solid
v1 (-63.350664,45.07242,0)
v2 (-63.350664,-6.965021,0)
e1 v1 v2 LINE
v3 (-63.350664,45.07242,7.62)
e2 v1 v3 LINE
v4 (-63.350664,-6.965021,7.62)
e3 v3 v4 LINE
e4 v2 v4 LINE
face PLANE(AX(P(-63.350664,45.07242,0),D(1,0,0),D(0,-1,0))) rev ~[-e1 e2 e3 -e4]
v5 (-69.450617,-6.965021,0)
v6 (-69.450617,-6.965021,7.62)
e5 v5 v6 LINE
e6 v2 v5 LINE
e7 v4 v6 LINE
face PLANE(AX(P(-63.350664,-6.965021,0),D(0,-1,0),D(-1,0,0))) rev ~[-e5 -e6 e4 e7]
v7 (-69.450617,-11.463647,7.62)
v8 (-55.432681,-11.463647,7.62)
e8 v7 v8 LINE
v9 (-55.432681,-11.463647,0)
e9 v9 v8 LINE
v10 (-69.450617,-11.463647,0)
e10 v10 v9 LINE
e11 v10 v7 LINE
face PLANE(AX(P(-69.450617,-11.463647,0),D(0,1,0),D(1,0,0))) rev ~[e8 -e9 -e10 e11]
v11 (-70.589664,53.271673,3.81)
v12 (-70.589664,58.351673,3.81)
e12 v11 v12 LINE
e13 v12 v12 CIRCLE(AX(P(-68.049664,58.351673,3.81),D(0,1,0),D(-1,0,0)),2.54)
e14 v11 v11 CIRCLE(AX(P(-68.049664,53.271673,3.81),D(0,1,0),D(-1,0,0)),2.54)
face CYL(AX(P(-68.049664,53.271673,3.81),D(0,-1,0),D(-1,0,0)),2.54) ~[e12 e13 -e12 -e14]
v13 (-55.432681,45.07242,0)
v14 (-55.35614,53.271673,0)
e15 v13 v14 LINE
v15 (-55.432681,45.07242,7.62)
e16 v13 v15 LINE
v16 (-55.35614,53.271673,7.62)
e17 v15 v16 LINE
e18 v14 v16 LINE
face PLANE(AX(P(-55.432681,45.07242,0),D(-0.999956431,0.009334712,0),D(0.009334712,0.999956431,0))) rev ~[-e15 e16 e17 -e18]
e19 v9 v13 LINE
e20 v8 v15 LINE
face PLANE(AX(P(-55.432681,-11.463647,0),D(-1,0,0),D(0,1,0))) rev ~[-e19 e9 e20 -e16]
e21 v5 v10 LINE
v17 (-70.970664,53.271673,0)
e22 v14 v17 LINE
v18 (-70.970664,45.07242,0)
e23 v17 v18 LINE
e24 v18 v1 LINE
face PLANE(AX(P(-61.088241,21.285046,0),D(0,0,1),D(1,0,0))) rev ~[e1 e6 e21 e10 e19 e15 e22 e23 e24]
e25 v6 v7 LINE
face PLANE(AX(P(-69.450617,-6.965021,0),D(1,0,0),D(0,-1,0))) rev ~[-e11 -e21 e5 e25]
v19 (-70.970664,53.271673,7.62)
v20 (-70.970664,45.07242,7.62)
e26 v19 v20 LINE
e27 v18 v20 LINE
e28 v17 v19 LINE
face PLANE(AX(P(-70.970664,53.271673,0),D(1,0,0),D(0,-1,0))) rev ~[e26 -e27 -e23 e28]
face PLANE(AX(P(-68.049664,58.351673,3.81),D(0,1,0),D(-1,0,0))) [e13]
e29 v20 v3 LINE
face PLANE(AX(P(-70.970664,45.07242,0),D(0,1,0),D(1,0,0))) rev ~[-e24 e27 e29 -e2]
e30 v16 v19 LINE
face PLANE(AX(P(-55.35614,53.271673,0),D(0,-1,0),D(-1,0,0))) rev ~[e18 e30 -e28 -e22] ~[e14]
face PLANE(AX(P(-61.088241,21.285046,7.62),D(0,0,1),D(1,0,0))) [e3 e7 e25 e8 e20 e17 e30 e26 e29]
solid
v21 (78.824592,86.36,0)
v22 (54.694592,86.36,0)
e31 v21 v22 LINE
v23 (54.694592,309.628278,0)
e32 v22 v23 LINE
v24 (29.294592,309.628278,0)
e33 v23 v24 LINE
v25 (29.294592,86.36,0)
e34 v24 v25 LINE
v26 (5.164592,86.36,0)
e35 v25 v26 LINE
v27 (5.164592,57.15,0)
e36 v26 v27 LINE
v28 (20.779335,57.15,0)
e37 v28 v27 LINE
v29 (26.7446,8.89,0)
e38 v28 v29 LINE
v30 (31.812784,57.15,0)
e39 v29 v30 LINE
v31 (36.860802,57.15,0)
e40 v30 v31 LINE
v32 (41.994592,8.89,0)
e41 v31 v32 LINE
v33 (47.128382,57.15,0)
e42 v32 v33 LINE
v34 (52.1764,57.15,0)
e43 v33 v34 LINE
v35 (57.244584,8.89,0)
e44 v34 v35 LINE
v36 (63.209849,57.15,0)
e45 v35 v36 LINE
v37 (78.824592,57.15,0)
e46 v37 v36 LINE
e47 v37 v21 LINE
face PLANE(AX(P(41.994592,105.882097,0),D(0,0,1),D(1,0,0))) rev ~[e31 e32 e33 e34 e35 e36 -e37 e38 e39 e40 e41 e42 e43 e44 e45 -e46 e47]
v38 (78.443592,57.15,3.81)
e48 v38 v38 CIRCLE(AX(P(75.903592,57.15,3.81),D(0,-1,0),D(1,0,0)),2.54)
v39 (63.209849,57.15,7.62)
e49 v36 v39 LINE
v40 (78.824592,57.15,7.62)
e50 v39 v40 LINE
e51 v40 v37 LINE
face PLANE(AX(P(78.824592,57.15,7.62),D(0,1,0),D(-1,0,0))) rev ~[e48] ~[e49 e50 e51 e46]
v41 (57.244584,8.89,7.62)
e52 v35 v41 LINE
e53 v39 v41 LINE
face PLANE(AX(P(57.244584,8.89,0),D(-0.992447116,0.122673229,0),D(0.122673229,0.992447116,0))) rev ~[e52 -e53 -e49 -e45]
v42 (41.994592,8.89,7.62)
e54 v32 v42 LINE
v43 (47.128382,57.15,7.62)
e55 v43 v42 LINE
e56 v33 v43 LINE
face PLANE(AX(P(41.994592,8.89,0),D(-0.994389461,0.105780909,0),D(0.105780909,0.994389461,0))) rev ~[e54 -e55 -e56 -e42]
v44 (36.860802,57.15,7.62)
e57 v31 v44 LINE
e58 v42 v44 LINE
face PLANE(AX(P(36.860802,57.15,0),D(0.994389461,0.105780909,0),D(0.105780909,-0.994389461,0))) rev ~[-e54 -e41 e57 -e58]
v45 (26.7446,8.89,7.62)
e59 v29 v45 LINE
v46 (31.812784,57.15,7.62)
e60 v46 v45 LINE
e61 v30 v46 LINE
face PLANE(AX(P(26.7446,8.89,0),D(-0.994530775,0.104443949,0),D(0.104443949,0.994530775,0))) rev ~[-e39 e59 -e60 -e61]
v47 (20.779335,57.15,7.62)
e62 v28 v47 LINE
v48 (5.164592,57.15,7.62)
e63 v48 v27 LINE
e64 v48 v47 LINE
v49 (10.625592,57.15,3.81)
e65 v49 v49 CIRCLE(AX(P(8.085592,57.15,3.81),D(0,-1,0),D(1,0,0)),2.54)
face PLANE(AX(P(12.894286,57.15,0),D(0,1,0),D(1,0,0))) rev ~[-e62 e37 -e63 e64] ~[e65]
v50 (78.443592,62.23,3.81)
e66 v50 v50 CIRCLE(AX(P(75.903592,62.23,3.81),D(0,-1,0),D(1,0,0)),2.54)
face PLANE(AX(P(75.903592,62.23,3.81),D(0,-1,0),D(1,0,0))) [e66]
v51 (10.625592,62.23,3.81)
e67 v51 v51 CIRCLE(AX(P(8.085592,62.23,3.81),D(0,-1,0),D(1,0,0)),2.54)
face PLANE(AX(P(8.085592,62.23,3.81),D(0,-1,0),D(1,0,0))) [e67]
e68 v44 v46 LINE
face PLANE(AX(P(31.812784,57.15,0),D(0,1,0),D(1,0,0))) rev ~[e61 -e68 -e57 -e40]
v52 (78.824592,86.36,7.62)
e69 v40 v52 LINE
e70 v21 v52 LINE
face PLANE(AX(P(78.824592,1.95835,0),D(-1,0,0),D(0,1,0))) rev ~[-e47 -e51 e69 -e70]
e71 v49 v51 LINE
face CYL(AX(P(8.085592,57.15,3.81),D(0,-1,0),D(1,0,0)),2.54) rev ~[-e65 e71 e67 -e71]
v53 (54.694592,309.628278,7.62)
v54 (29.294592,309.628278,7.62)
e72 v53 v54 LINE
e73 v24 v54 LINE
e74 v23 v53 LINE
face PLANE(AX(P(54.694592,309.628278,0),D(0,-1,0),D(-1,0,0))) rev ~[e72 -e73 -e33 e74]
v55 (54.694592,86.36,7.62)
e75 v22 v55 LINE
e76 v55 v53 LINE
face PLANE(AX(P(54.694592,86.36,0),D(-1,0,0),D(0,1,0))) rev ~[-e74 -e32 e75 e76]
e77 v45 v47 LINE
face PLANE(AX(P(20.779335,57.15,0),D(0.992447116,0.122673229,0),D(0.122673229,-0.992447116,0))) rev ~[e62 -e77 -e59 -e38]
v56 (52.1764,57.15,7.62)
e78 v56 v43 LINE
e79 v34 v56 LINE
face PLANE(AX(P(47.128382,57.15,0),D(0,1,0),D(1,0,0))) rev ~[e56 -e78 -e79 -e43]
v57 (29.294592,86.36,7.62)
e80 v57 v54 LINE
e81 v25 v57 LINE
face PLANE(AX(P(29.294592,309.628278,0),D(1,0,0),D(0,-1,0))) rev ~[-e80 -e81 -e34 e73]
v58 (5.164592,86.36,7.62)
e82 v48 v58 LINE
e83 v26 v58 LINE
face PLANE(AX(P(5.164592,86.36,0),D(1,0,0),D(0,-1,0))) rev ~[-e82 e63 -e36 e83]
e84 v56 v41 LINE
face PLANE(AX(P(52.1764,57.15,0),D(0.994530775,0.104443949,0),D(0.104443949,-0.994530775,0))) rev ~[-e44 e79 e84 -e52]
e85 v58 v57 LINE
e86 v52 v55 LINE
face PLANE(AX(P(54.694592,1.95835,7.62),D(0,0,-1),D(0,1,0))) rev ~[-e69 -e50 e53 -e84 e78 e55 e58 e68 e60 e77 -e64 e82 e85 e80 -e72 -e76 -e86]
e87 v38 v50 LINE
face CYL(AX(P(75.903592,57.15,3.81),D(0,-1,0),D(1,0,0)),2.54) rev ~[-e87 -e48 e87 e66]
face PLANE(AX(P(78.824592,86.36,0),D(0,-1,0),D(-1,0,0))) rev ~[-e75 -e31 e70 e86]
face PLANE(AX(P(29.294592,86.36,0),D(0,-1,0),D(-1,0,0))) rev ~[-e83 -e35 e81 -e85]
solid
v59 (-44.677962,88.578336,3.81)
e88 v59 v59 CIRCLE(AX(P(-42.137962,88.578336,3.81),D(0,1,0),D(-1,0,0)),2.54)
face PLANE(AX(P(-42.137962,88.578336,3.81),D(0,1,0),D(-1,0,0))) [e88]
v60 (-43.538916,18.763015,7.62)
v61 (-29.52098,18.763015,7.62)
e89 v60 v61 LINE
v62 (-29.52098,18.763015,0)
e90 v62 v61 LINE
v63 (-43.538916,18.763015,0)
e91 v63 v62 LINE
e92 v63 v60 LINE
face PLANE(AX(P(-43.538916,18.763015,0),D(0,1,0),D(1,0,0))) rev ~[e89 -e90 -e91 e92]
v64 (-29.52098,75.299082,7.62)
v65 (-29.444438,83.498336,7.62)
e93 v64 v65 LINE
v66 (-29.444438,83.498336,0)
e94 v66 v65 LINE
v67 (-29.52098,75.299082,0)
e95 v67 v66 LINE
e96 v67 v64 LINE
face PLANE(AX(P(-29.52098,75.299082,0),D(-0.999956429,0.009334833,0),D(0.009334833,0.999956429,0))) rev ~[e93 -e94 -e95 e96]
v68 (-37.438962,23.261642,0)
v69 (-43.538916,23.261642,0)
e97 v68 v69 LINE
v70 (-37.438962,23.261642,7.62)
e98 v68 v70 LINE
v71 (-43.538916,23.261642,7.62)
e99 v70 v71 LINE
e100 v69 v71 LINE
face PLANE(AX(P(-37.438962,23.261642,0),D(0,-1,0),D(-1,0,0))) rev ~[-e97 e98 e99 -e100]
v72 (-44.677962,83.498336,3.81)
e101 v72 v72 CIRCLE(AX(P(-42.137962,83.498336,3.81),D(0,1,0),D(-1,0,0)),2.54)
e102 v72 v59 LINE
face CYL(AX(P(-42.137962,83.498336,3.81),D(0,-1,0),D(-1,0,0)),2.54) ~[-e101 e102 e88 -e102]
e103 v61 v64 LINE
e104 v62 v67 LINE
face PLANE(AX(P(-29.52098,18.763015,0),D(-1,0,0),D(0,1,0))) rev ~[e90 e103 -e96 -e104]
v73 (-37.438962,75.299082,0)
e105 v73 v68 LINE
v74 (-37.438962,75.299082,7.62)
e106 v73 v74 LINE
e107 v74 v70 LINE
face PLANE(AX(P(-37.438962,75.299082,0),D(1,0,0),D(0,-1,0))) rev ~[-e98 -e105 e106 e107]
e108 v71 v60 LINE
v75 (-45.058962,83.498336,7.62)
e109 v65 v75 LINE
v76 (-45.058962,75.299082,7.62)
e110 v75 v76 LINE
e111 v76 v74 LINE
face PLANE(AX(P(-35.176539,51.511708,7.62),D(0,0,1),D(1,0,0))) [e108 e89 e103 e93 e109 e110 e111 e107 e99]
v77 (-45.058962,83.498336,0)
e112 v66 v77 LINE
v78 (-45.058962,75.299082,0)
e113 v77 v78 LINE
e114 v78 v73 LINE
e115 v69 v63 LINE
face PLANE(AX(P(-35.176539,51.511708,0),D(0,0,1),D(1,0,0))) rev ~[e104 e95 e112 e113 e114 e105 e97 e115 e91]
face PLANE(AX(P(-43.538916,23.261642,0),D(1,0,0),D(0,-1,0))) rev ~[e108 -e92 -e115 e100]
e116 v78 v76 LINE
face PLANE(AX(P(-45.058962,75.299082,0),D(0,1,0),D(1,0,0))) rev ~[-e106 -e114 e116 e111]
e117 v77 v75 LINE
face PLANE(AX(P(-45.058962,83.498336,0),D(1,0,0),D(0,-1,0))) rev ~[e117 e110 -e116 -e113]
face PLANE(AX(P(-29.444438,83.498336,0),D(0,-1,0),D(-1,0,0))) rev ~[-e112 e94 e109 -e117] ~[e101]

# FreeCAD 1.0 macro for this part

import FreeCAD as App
import Part
import Sketcher
from FreeCAD import Vector
Q = App.Units.Quantity


def add_polygon(sketch, points):
    """Adds a closed chain of lines whose ends are joined by coincident constraints."""
    first, n = sketch.GeometryCount, len(points)
    for a, b in zip(points, points[1:] + points[:1]):
        sketch.addGeometry(Part.LineSegment(App.Vector(*a, 0), App.Vector(*b, 0)), False)
    for i in range(n):
        sketch.addConstraint(Sketcher.Constraint("Coincident", first + i, 2, first + (i + 1) % n, 1))

doc = App.newDocument("Part")
body = doc.addObject("PartDesign::Body", "Body")

sketch1 = body.newObject("Sketcher::SketchObject", "Sketch")
sketch1.AttachmentSupport = (doc.getObject("XY_Plane"), [""])
sketch1.MapMode = "FlatFace"
add_polygon(sketch1, [(20.8, 57.1), (26.7, 8.9), (31.8, 57.1), (36.9, 57.1), (42, 8.9), (47.1, 57.1), (52.2, 57.1), (57.2, 8.9), (63.2, 57.1), (71.1, 57.1), (71.1, 6.3), (65.1, 6.3), (65.1, 2), (78.8, 2), (78.8, 86.4), (54.7, 86.4), (54.7, 309.6), (29.3, 309.6), (29.3, 86.4), (5.2, 86.4), (5.2, 2), (18.8, 2), (18.8, 6.3), (12.9, 6.3), (12.9, 57.1)])
sketch1.addConstraint(Sketcher.Constraint("Horizontal", 2))
sketch1.addConstraint(Sketcher.Constraint("Horizontal", 5))
sketch1.addConstraint(Sketcher.Constraint("Horizontal", 8))
sketch1.addConstraint(Sketcher.Constraint("Vertical", 9))
sketch1.addConstraint(Sketcher.Constraint("Horizontal", 10))
sketch1.addConstraint(Sketcher.Constraint("Vertical", 11))
sketch1.addConstraint(Sketcher.Constraint("Horizontal", 12))
sketch1.addConstraint(Sketcher.Constraint("Vertical", 13))
sketch1.addConstraint(Sketcher.Constraint("Horizontal", 14))
sketch1.addConstraint(Sketcher.Constraint("Vertical", 15))
sketch1.addConstraint(Sketcher.Constraint("Horizontal", 16))
sketch1.addConstraint(Sketcher.Constraint("Vertical", 17))
sketch1.addConstraint(Sketcher.Constraint("Horizontal", 18))
sketch1.addConstraint(Sketcher.Constraint("Vertical", 19))
sketch1.addConstraint(Sketcher.Constraint("Horizontal", 20))
sketch1.addConstraint(Sketcher.Constraint("Vertical", 21))
sketch1.addConstraint(Sketcher.Constraint("Horizontal", 22))
sketch1.addConstraint(Sketcher.Constraint("Vertical", 23))
sketch1.addConstraint(Sketcher.Constraint("Horizontal", 24))
sketch1.addConstraint(Sketcher.Constraint("Horizontal", 0, 2, 3, 2))
sketch1.addConstraint(Sketcher.Constraint("Horizontal", 2, 2, 4, 2))
sketch1.addConstraint(Sketcher.Constraint("Horizontal", 3, 2, 6, 2))
sketch1.addConstraint(Sketcher.Constraint("Horizontal", 5, 2, 7, 2))
sketch1.addConstraint(Sketcher.Constraint("Horizontal", 14, 2, 17, 2))
sketch1.addConstraint(Sketcher.Constraint("Horizontal", 12, 2, 19, 2))
sketch1.addConstraint(Sketcher.Constraint("Horizontal", 10, 2, 21, 2))
sketch1.addConstraint(Sketcher.Constraint("Horizontal", 8, 2, 23, 2))
sketch1.addConstraint(Sketcher.Constraint("Equal", 2, 5))
sketch1.addConstraint(Sketcher.Constraint("Equal", 14, 18))
sketch1.addConstraint(Sketcher.Constraint("Equal", 12, 20))
sketch1.addConstraint(Sketcher.Constraint("Equal", 10, 22))
sketch1.addConstraint(Sketcher.Constraint("Equal", 8, 24))
sketch1.addConstraint(Sketcher.Constraint("Equal", 3, 4))
sketch1.addConstraint(Sketcher.Constraint("Equal", 1, 6))
sketch1.addConstraint(Sketcher.Constraint("Equal", 0, 7))
sketch1.addConstraint(Sketcher.Constraint("DistanceX", 16, 2, 16, 1, Q("1 in")))
sketch1.addConstraint(Sketcher.Constraint("DistanceY", 9, 2, 9, 1, Q("2 in")))
sketch1.addConstraint(Sketcher.Constraint("DistanceX", 14, 2, 14, 1, Q("0.95 in")))
sketch1.addConstraint(Sketcher.Constraint("DistanceY", -1, 1, 13, 2, Q("3.4 in")))
sketch1.addConstraint(Sketcher.Constraint("DistanceY", 0, 2, 1, 2, Q("1.9 in")))
sketch1.addConstraint(Sketcher.Constraint("DistanceY", -1, 1, 0, 2, Q("0.35 in")))
sketch1.addConstraint(Sketcher.Constraint("DistanceX", 22, 2, 22, 1, Q("5.954898 mm")))
sketch1.addConstraint(Sketcher.Constraint("DistanceX", 8, 1, 8, 2, Q("7.885049 mm")))
sketch1.addConstraint(Sketcher.Constraint("DistanceX", 12, 1, 12, 2, Q("13.684592 mm")))
sketch1.addConstraint(Sketcher.Constraint("DistanceY", 11, 2, 11, 1, Q("4.39165 mm")))
sketch1.addConstraint(Sketcher.Constraint("DistanceY", 15, 1, 15, 2, Q("223.268278 mm")))
sketch1.addConstraint(Sketcher.Constraint("DistanceX", -1, 1, 0, 2, Q("26.7446 mm")))
sketch1.addConstraint(Sketcher.Constraint("DistanceX", -1, 1, 5, 2, Q("52.1764 mm")))
sketch1.addConstraint(Sketcher.Constraint("DistanceX", -1, 1, 8, 2, Q("71.094898 mm")))
sketch1.addConstraint(Sketcher.Constraint("DistanceX", 1, 2, 4, 2, Q("15.315598 mm")))
pad1 = body.newObject("PartDesign::Pad", "Pad")
pad1.Profile = sketch1
pad1.Length = Q("4 in")

sketch2 = body.newObject("Sketcher::SketchObject", "Sketch001")
sketch2.AttachmentSupport = (doc.getObject("YZ_Plane"), [""])
sketch2.MapMode = "FlatFace"
sketch2.AttachmentOffset = App.Placement(Vector(0, 0, 54.694592), App.Rotation())
add_polygon(sketch2, [(310, 8), (310, 102), (2, 102), (2, 8)])
sketch2.addConstraint(Sketcher.Constraint("Vertical", 0))
sketch2.addConstraint(Sketcher.Constraint("Horizontal", 1))
sketch2.addConstraint(Sketcher.Constraint("Vertical", 2))
sketch2.addConstraint(Sketcher.Constraint("Horizontal", 3))
sketch2.addConstraint(Sketcher.Constraint("DistanceY", 0, 1, 0, 2, Q("3.7 in")))
sketch2.addConstraint(Sketcher.Constraint("DistanceY", -1, 1, 0, 2, Q("4 in")))
sketch2.addConstraint(Sketcher.Constraint("DistanceX", 1, 2, 1, 1, Q("307.669928 mm")))
sketch2.addConstraint(Sketcher.Constraint("DistanceX", -1, 1, 0, 2, Q("309.628278 mm")))
pocket1 = body.newObject("PartDesign::Pocket", "Pocket")
pocket1.Profile = sketch2
pocket1.Type = "ThroughAll"

sketch3 = body.newObject("Sketcher::SketchObject", "Sketch002")
sketch3.AttachmentSupport = (doc.getObject("YZ_Plane"), [""])
sketch3.MapMode = "FlatFace"
sketch3.AttachmentOffset = App.Placement(Vector(0, 0, 78.824592), App.Rotation())
add_polygon(sketch3, [(2, 102), (2, 8), (86, 8), (86, 102)])
sketch3.addConstraint(Sketcher.Constraint("Vertical", 0))
sketch3.addConstraint(Sketcher.Constraint("Horizontal", 1))
sketch3.addConstraint(Sketcher.Constraint("Vertical", 2))
sketch3.addConstraint(Sketcher.Constraint("Horizontal", 3))
sketch3.addConstraint(Sketcher.Constraint("DistanceY", 0, 2, 0, 1, Q("3.7 in")))
sketch3.addConstraint(Sketcher.Constraint("DistanceY", -1, 1, 2, 2, Q("4 in")))
sketch3.addConstraint(Sketcher.Constraint("DistanceX", -1, 1, 1, 2, Q("3.4 in")))
sketch3.addConstraint(Sketcher.Constraint("DistanceX", 1, 1, 1, 2, Q("84.40165 mm")))
pocket2 = body.newObject("PartDesign::Pocket", "Pocket001")
pocket2.Profile = sketch3
pocket2.Type = "ThroughAll"

sketch4 = body.newObject("Sketcher::SketchObject", "Sketch003")
sketch4.AttachmentSupport = (doc.getObject("XY_Plane"), [""])
sketch4.MapMode = "FlatFace"
sketch4.AttachmentOffset = App.Placement(Vector(0, 0, 0.3 * 25.4), App.Rotation())
add_polygon(sketch4, [(5.2, 57.1), (5.2, 2), (18.8, 2), (18.8, 6.3), (12.9, 6.3), (12.9, 57.1)])
add_polygon(sketch4, [(78.8, 2), (78.8, 57.1), (71.1, 57.1), (71.1, 6.3), (65.1, 6.3), (65.1, 2)])
sketch4.addConstraint(Sketcher.Constraint("Vertical", 0))
sketch4.addConstraint(Sketcher.Constraint("Horizontal", 1))
sketch4.addConstraint(Sketcher.Constraint("Vertical", 2))
sketch4.addConstraint(Sketcher.Constraint("Horizontal", 3))
sketch4.addConstraint(Sketcher.Constraint("Vertical", 4))
sketch4.addConstraint(Sketcher.Constraint("Horizontal", 5))
sketch4.addConstraint(Sketcher.Constraint("Vertical", 6))
sketch4.addConstraint(Sketcher.Constraint("Horizontal", 7))
sketch4.addConstraint(Sketcher.Constraint("Vertical", 8))
sketch4.addConstraint(Sketcher.Constraint("Horizontal", 9))
sketch4.addConstraint(Sketcher.Constraint("Vertical", 10))
sketch4.addConstraint(Sketcher.Constraint("Horizontal", 11))
sketch4.addConstraint(Sketcher.Constraint("Horizontal", 5, 2, 6, 2))
sketch4.addConstraint(Sketcher.Constraint("Horizontal", 3, 2, 8, 2))
sketch4.addConstraint(Sketcher.Constraint("Horizontal", 1, 2, 10, 2))
sketch4.addConstraint(Sketcher.Constraint("Equal", 5, 7))
sketch4.addConstraint(Sketcher.Constraint("Equal", 3, 9))
sketch4.addConstraint(Sketcher.Constraint("DistanceY", 4, 1, 4, 2, Q("2 in")))
sketch4.addConstraint(Sketcher.Constraint("DistanceX", 5, 2, 6, 2, Q("2.9 in")))
sketch4.addConstraint(Sketcher.Constraint("DistanceY", -1, 1, 2, 2, Q("0.25 in")))
sketch4.addConstraint(Sketcher.Constraint("DistanceX", 3, 2, 3, 1, Q("5.954898 mm")))
sketch4.addConstraint(Sketcher.Constraint("DistanceX", 11, 1, 11, 2, Q("13.684592 mm")))
sketch4.addConstraint(Sketcher.Constraint("DistanceY", 0, 2, 0, 1, Q("55.19165 mm")))
sketch4.addConstraint(Sketcher.Constraint("DistanceX", -1, 1, 7, 2, Q("71.094898 mm")))
pocket3 = body.newObject("PartDesign::Pocket", "Pocket002")
pocket3.Profile = sketch4
pocket3.Type = "ThroughAll"

sketch5 = body.newObject("Sketcher::SketchObject", "Sketch004")
sketch5.AttachmentSupport = (doc.getObject("XZ_Plane"), [""])
sketch5.MapMode = "FlatFace"
sketch5.AttachmentOffset = App.Placement(Vector(0, 0, -2.25 * 25.4), App.Rotation())
sketch5.addGeometry(Part.Circle(Vector(8.1, 3.8, 0), Vector(0, 0, 1), 2.5), False)
sketch5.addGeometry(Part.Circle(Vector(75.9, 3.8, 0), Vector(0, 0, 1), 2.5), False)
sketch5.addConstraint(Sketcher.Constraint("Equal", 0, 1))
sketch5.addConstraint(Sketcher.Constraint("Horizontal", 0, 3, 1, 3))
sketch5.addConstraint(Sketcher.Constraint("Diameter", 0, Q("0.2 in")))
sketch5.addConstraint(Sketcher.Constraint("DistanceY", -1, 1, 0, 3, Q("0.15 in")))
sketch5.addConstraint(Sketcher.Constraint("DistanceX", 0, 3, 1, 3, Q("2.67 in")))
sketch5.addConstraint(Sketcher.Constraint("DistanceX", -1, 1, 0, 3, Q("8.085592 mm")))
pocket4 = body.newObject("PartDesign::Pocket", "Pocket003")
pocket4.Profile = sketch5
pocket4.Length = Q("0.2 in")
body2 = doc.addObject("PartDesign::Body", "Body001")
body2.AllowCompound = True

sketch6 = body2.newObject("Sketcher::SketchObject", "Sketch005")
sketch6.AttachmentSupport = (doc.getObject("XY_Plane001"), [""])
sketch6.MapMode = "FlatFace"
add_polygon(sketch6, [(-63.4, -7), (-69.5, -7), (-69.5, -11.5), (-55.4, -11.5), (-55.4, 45.1), (-55.4, 53.3), (-71, 53.3), (-71, 45.1), (-63.4, 45.1)])
add_polygon(sketch6, [(-37.4, 23.3), (-43.5, 23.3), (-43.5, 18.8), (-29.5, 18.8), (-29.5, 75.3), (-29.4, 83.5), (-45.1, 83.5), (-45.1, 75.3), (-37.4, 75.3)])
sketch6.addConstraint(Sketcher.Constraint("Horizontal", 0))
sketch6.addConstraint(Sketcher.Constraint("Vertical", 1))
sketch6.addConstraint(Sketcher.Constraint("Horizontal", 2))
sketch6.addConstraint(Sketcher.Constraint("Vertical", 3))
sketch6.addConstraint(Sketcher.Constraint("Horizontal", 5))
sketch6.addConstraint(Sketcher.Constraint("Vertical", 6))
sketch6.addConstraint(Sketcher.Constraint("Horizontal", 7))
sketch6.addConstraint(Sketcher.Constraint("Vertical", 8))
sketch6.addConstraint(Sketcher.Constraint("Horizontal", 9))
sketch6.addConstraint(Sketcher.Constraint("Vertical", 10))
sketch6.addConstraint(Sketcher.Constraint("Horizontal", 11))
sketch6.addConstraint(Sketcher.Constraint("Vertical", 12))
sketch6.addConstraint(Sketcher.Constraint("Horizontal", 14))
sketch6.addConstraint(Sketcher.Constraint("Vertical", 15))
sketch6.addConstraint(Sketcher.Constraint("Horizontal", 16))
sketch6.addConstraint(Sketcher.Constraint("Vertical", 17))
sketch6.addConstraint(Sketcher.Constraint("Parallel", 4, 13))
sketch6.addConstraint(Sketcher.Constraint("Horizontal", 3, 2, 6, 2))
sketch6.addConstraint(Sketcher.Constraint("Horizontal", 12, 2, 15, 2))
sketch6.addConstraint(Sketcher.Constraint("Equal", 0, 9))
sketch6.addConstraint(Sketcher.Constraint("Equal", 2, 11))
sketch6.addConstraint(Sketcher.Constraint("Equal", 5, 14))
sketch6.addConstraint(Sketcher.Constraint("Equal", 7, 16))
sketch6.addConstraint(Sketcher.Constraint("Equal", 1, 10))
sketch6.addConstraint(Sketcher.Constraint("Equal", 3, 12))
sketch6.addConstraint(Sketcher.Constraint("DistanceX", 7, 1, 7, 2, Q("0.3 in")))
sketch6.addConstraint(Sketcher.Constraint("DistanceY", 8, 2, 8, 1, Q("52.037441 mm")))
sketch6.addConstraint(Sketcher.Constraint("DistanceX", 3, 2, 11, 2, Q("25.911701 mm")))
sketch6.addConstraint(Sketcher.Constraint("Distance", 4, Q("8.19961 mm")))
sketch6.addConstraint(Sketcher.Constraint("DistanceX", 0, 2, 0, 1, Q("6.099953 mm")))
sketch6.addConstraint(Sketcher.Constraint("DistanceX", 2, 1, 2, 2, Q("14.017936 mm")))
sketch6.addConstraint(Sketcher.Constraint("DistanceX", 5, 2, 5, 1, Q("15.614524 mm")))
sketch6.addConstraint(Sketcher.Constraint("DistanceY", 1, 2, 1, 1, Q("4.498626 mm")))
sketch6.addConstraint(Sketcher.Constraint("DistanceY", 0, 2, -1, 1, Q("6.965021 mm")))
sketch6.addConstraint(Sketcher.Constraint("DistanceX", 2, 2, -1, 1, Q("55.432681 mm")))
sketch6.addConstraint(Sketcher.Constraint("DistanceY", -1, 1, 9, 2, Q("23.261642 mm")))
pad2 = body2.newObject("PartDesign::Pad", "Pad001")
pad2.Profile = sketch6
pad2.Length = Q("0.3 in")

sketch7 = body2.newObject("Sketcher::SketchObject", "Sketch006")
sketch7.AttachmentSupport = (doc.getObject("XZ_Plane001"), [""])
sketch7.MapMode = "FlatFace"
sketch7.AttachmentOffset = App.Placement(Vector(0, 0, -53.271673), App.Rotation())
sketch7.addGeometry(Part.Circle(Vector(-68, 3.8, 0), Vector(0, 0, 1), 2.5), False)
sketch7.addConstraint(Sketcher.Constraint("Diameter", 0, Q("0.2 in")))
sketch7.addConstraint(Sketcher.Constraint("DistanceY", -1, 1, 0, 3, Q("0.15 in")))
sketch7.addConstraint(Sketcher.Constraint("DistanceX", 0, 3, -1, 1, Q("68.049664 mm")))
pad3 = body2.newObject("PartDesign::Pad", "Pad002")
pad3.Profile = sketch7
pad3.Length = Q("0.2 in")
pad3.Reversed = True

sketch8 = body2.newObject("Sketcher::SketchObject", "Sketch007")
sketch8.AttachmentSupport = (doc.getObject("XZ_Plane001"), [""])
sketch8.MapMode = "FlatFace"
sketch8.AttachmentOffset = App.Placement(Vector(0, 0, -83.498336), App.Rotation())
sketch8.addGeometry(Part.Circle(Vector(-42.1, 3.8, 0), Vector(0, 0, 1), 2.5), False)
sketch8.addConstraint(Sketcher.Constraint("Diameter", 0, Q("0.2 in")))
sketch8.addConstraint(Sketcher.Constraint("DistanceY", -1, 1, 0, 3, Q("0.15 in")))
sketch8.addConstraint(Sketcher.Constraint("DistanceX", 0, 3, -1, 1, Q("42.137962 mm")))
pad4 = body2.newObject("PartDesign::Pad", "Pad003")
pad4.Profile = sketch8
pad4.Length = Q("0.2 in")
pad4.Reversed = True

doc.recompute()
